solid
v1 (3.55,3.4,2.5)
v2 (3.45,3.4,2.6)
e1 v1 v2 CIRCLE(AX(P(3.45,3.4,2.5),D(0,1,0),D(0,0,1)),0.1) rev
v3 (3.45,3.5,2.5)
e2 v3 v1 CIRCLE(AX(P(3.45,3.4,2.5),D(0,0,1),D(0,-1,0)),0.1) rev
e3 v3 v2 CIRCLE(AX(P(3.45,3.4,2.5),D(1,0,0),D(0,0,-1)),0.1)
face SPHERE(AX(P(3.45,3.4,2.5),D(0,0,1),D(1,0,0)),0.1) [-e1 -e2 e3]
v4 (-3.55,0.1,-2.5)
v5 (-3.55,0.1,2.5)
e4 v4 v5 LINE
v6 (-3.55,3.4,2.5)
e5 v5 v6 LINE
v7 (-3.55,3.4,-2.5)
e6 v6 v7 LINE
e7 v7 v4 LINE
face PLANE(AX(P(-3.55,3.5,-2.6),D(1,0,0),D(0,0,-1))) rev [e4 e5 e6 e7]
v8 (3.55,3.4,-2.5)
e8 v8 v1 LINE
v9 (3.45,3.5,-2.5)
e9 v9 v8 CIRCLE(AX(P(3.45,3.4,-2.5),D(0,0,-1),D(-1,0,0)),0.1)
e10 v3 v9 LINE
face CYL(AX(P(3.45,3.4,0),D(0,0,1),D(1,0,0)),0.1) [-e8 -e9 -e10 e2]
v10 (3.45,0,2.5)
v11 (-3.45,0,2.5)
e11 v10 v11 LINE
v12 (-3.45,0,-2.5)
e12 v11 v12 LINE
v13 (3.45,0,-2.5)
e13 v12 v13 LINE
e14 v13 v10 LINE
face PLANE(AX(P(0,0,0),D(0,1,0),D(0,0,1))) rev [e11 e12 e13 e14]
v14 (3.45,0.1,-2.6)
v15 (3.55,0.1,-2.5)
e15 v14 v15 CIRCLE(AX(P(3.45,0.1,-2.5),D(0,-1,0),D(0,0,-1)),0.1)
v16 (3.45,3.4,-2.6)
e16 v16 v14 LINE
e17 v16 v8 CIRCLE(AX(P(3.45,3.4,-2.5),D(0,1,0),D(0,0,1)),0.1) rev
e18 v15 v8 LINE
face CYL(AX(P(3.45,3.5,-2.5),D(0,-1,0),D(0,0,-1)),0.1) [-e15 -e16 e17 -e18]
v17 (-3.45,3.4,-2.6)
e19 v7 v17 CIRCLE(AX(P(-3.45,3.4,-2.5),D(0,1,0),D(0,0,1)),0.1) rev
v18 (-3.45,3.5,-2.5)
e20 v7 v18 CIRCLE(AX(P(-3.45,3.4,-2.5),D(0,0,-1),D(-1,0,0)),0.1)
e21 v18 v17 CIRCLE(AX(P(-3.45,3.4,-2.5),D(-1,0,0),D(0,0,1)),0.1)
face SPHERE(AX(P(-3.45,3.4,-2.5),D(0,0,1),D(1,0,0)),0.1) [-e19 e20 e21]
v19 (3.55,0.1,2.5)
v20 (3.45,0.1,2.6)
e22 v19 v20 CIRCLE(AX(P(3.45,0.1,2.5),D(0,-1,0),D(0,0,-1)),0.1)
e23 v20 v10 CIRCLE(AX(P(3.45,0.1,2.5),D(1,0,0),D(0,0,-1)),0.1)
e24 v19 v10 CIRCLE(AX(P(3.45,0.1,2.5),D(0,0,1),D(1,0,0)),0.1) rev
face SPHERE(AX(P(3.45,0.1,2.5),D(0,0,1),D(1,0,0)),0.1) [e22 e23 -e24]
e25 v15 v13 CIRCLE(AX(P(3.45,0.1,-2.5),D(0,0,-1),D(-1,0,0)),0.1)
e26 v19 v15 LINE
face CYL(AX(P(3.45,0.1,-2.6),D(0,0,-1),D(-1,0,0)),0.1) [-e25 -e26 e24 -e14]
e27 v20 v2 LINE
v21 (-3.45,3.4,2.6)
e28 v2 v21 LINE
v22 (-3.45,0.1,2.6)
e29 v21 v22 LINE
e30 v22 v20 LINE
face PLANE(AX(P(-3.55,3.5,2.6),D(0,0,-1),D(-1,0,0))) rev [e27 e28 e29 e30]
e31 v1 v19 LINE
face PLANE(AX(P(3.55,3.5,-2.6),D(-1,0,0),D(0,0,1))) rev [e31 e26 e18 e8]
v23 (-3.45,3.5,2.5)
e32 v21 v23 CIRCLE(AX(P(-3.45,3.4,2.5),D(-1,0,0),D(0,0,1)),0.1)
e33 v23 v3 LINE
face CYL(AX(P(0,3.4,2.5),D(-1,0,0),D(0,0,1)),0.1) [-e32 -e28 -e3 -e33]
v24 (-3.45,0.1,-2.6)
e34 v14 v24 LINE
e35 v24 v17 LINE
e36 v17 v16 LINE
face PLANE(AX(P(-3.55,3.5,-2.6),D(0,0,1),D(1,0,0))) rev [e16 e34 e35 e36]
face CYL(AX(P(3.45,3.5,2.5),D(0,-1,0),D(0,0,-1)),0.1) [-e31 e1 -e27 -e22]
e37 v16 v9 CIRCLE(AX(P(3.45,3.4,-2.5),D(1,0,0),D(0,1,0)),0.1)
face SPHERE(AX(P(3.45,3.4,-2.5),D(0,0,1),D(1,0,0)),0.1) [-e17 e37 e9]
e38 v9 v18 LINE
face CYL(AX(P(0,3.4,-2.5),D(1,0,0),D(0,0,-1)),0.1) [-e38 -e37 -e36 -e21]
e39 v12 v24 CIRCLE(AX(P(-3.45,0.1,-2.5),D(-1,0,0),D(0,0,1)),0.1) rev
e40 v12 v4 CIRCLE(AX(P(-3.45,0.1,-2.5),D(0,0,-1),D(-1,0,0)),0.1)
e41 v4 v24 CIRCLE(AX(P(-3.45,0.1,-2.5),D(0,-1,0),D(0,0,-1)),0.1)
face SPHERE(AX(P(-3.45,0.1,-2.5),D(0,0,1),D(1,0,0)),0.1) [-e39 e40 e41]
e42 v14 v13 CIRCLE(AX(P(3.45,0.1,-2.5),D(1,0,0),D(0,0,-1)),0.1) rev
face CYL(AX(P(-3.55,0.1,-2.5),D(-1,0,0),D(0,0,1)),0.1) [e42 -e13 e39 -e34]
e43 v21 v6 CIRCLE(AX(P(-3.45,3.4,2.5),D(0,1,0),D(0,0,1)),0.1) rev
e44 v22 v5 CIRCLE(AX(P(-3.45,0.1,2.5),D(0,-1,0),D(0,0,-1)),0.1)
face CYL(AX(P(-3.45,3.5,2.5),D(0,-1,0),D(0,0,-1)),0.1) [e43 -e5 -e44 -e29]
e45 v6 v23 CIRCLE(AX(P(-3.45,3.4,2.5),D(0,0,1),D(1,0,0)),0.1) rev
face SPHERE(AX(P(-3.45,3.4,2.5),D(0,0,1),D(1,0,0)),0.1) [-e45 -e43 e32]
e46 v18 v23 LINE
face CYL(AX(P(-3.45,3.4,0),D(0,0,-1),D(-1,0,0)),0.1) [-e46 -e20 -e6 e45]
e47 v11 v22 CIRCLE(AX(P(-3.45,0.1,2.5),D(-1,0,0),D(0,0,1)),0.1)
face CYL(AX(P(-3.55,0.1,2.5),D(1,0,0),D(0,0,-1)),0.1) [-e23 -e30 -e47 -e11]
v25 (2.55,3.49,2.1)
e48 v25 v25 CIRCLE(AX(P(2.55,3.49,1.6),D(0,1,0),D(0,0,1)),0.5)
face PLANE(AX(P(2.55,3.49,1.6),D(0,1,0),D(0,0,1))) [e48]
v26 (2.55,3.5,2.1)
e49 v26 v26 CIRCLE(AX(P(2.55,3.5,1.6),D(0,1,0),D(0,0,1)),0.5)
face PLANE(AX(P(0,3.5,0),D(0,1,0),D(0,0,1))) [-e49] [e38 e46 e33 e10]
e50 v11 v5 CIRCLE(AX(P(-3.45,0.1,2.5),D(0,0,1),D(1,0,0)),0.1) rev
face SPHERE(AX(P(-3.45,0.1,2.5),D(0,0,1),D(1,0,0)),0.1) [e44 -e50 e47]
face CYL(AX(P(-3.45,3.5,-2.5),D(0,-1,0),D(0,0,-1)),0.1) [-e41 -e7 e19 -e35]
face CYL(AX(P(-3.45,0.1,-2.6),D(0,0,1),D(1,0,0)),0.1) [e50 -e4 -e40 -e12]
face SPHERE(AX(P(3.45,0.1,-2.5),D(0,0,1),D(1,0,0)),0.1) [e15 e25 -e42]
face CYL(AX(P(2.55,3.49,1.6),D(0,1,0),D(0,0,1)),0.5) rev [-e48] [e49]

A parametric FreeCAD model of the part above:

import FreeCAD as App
import Part
import Sketcher

V = App.Vector

doc = App.newDocument("Part")
body = doc.addObject("PartDesign::Body", "Body")

# Sketch on XZ plane
sketch1 = doc.addObject("Sketcher::SketchObject", "Sketch")
body.addObject(sketch1)
sketch1.AttachmentSupport = (doc.XZ_Plane, [""])
sketch1.MapMode = "FlatFace"
sketch1.addGeometry(Part.LineSegment(V(-3.55, -2.6, 0), V(-3.55, 2.6, 0)), False)
sketch1.addGeometry(Part.LineSegment(V(-3.55, 2.6, 0), V(3.55, 2.6, 0)), False)
sketch1.addGeometry(Part.LineSegment(V(3.55, 2.6, 0), V(3.55, -2.6, 0)), False)
sketch1.addGeometry(Part.LineSegment(V(3.55, -2.6, 0), V(-3.55, -2.6, 0)), False)
sketch1.addConstraint(Sketcher.Constraint("Coincident", 0, 2, 1, 1))
sketch1.addConstraint(Sketcher.Constraint("Coincident", 1, 2, 2, 1))
sketch1.addConstraint(Sketcher.Constraint("Coincident", 2, 2, 3, 1))
sketch1.addConstraint(Sketcher.Constraint("Coincident", 3, 2, 0, 1))
sketch1.addConstraint(Sketcher.Constraint("Vertical", 0))
sketch1.addConstraint(Sketcher.Constraint("Horizontal", 1))
sketch1.addConstraint(Sketcher.Constraint("Vertical", 2))
sketch1.addConstraint(Sketcher.Constraint("Horizontal", 3))
sketch1.addConstraint(Sketcher.Constraint("Symmetric", 0, 2, 2, 2, -1, 1))
sketch1.addConstraint(Sketcher.Constraint("DistanceX", 1, 1, 1, 2, 7.1))
sketch1.addConstraint(Sketcher.Constraint("DistanceY", 0, 1, 0, 2, 5.2))
pad1 = doc.addObject("PartDesign::Pad", "Pad")
body.addObject(pad1)
pad1.Profile = sketch1
pad1.Length = 3.5
pad1.Reversed = True
doc.recompute()

fillet = doc.addObject("PartDesign::Fillet", "Fillet")
body.addObject(fillet)
fillet.Base = (pad1, ["Edge1"])
fillet.UseAllEdges = True
fillet.Radius = 0.1

# Sketch on XZ plane
sketch2 = doc.addObject("Sketcher::SketchObject", "Sketch001")
body.addObject(sketch2)
sketch2.AttachmentSupport = (doc.XZ_Plane, [""])
sketch2.MapMode = "FlatFace"
sketch2.AttachmentOffset = App.Placement(V(0, 0, -3.5), App.Rotation())
sketch2.addGeometry(Part.Circle(V(2.55, 1.6, 0), V(0, 0, 1), 0.5), False)
sketch2.addConstraint(Sketcher.Constraint("Diameter", 0, 1.0))
sketch2.addConstraint(Sketcher.Constraint("DistanceY", -1, 1, 0, 3, 1.6))
sketch2.addConstraint(Sketcher.Constraint("DistanceX", -1, 1, 0, 3, 2.55))
pocket1 = doc.addObject("PartDesign::Pocket", "Pocket")
body.addObject(pocket1)
pocket1.Profile = sketch2
pocket1.Length = 0.01
pocket1.Reversed = True

doc.recompute()
